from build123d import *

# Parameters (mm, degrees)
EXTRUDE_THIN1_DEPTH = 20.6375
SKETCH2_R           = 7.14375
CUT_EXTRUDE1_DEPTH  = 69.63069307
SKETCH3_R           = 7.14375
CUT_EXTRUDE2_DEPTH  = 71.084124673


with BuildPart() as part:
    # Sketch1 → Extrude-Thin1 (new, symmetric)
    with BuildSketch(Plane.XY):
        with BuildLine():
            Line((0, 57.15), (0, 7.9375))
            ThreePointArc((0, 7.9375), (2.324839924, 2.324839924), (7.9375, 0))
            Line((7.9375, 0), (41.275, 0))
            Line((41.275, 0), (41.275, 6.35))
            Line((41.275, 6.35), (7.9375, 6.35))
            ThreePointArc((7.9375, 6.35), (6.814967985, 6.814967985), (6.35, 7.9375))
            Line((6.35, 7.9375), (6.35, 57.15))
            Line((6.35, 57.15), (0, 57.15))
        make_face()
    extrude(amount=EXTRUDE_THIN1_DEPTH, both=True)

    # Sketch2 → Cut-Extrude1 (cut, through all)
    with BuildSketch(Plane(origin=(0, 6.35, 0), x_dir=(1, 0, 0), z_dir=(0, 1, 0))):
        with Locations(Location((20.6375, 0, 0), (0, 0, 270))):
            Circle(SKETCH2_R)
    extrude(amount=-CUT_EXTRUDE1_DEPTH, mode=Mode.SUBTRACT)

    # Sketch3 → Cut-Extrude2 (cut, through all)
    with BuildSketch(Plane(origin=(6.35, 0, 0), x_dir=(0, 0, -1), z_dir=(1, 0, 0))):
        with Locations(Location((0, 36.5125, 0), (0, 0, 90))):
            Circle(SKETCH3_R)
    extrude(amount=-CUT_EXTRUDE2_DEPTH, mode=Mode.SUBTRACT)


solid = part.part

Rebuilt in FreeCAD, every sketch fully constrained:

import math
import FreeCAD as App
import Part
import Sketcher
from FreeCAD import Vector
Q = App.Units.Quantity

doc = App.newDocument("Part")
body = doc.addObject("PartDesign::Body", "Body")

# Sketch on XY plane
sketch1 = doc.addObject("Sketcher::SketchObject", "Sketch")
body.addObject(sketch1)
sketch1.AttachmentSupport = (doc.XY_Plane, [""])
sketch1.MapMode = "FlatFace"
sketch1.addGeometry([
    Part.LineSegment(Vector(0, 57.1, 0), Vector(0, 7.9, 0)),  # 0
    Part.ArcOfCircle(Part.Circle(Vector(7.9, 7.9, 0), Vector(0, 0, 1), 7.9), math.radians(180), math.radians(270)),  # 1
    Part.LineSegment(Vector(7.9, 0, 0), Vector(41.3, 0, 0)),  # 2
    Part.LineSegment(Vector(41.3, 0, 0), Vector(41.3, 6.3, 0)),  # 3
    Part.LineSegment(Vector(41.3, 6.3, 0), Vector(7.9, 6.3, 0)),  # 4
    Part.ArcOfCircle(Part.Circle(Vector(7.9, 7.9, 0), Vector(0, 0, 1), 1.6), math.radians(180), math.radians(270)),  # 5
    Part.LineSegment(Vector(6.3, 7.9, 0), Vector(6.3, 57.1, 0)),  # 6
    Part.LineSegment(Vector(6.3, 57.1, 0), Vector(0, 57.1, 0)),  # 7
], False)
sketch1.addConstraint([
    Sketcher.Constraint("Tangent", 0, 2, 1, 1),
    Sketcher.Constraint("Tangent", 1, 2, 2, 1),
    Sketcher.Constraint("Coincident", 2, 2, 3, 1),
    Sketcher.Constraint("Coincident", 3, 2, 4, 1),
    Sketcher.Constraint("Tangent", 4, 2, 5, 2),
    Sketcher.Constraint("Tangent", 5, 1, 6, 1),
    Sketcher.Constraint("Coincident", 6, 2, 7, 1),
    Sketcher.Constraint("Coincident", 7, 2, 0, 1),
    Sketcher.Constraint("Vertical", 0),
    Sketcher.Constraint("Horizontal", 2),
    Sketcher.Constraint("Vertical", 3),
    Sketcher.Constraint("Horizontal", 4),
    Sketcher.Constraint("Vertical", 6),
    Sketcher.Constraint("Horizontal", 7),
    Sketcher.Constraint("Coincident", 5, 3, 1, 3),
    Sketcher.Constraint("PointOnObject", 0, 2, -2),
    Sketcher.Constraint("PointOnObject", 1, 2, -1),
    Sketcher.Constraint("Radius", 1, Q("0.3125 in")),
    Sketcher.Constraint("Radius", 5, Q("0.0625 in")),
    Sketcher.Constraint("DistanceY", 4, 2, 6, 2, Q("2 in")),
    Sketcher.Constraint("DistanceX", 2, 1, 2, 2, Q("1.3125 in")),
])
pad1 = doc.addObject("PartDesign::Pad", "Pad")
body.addObject(pad1)
pad1.Profile = sketch1
pad1.Length = Q("1.625 in")
pad1.Midplane = True

# Sketch on XZ plane
sketch2 = doc.addObject("Sketcher::SketchObject", "Sketch001")
body.addObject(sketch2)
sketch2.AttachmentSupport = (doc.XZ_Plane, [""])
sketch2.MapMode = "FlatFace"
sketch2.AttachmentOffset = App.Placement(Vector(0, 0, -0.25 * 25.4), App.Rotation())
sketch2.addGeometry(Part.Circle(Vector(21, 0, 0), Vector(0, 0, 1), 7), False)
sketch2.addConstraint([
    Sketcher.Constraint("PointOnObject", 0, 3, -1),
    Sketcher.Constraint("Diameter", 0, Q("0.5625 in")),
    Sketcher.Constraint("DistanceX", -1, 1, 0, 3, Q("0.8125 in")),
])
pocket1 = doc.addObject("PartDesign::Pocket", "Pocket")
body.addObject(pocket1)
pocket1.Profile = sketch2
pocket1.Type = "ThroughAll"
pocket1.Reversed = True

# Sketch on YZ plane
sketch3 = doc.addObject("Sketcher::SketchObject", "Sketch002")
body.addObject(sketch3)
sketch3.AttachmentSupport = (doc.YZ_Plane, [""])
sketch3.MapMode = "FlatFace"
sketch3.AttachmentOffset = App.Placement(Vector(0, 0, 0.25 * 25.4), App.Rotation())
sketch3.addGeometry(Part.Circle(Vector(37, 0, 0), Vector(0, 0, 1), 7), False)
sketch3.addConstraint([
    Sketcher.Constraint("PointOnObject", 0, 3, -1),
    Sketcher.Constraint("Diameter", 0, Q("0.5625 in")),
    Sketcher.Constraint("DistanceX", -1, 1, 0, 3, Q("1.4375 in")),
])
pocket2 = doc.addObject("PartDesign::Pocket", "Pocket001")
body.addObject(pocket2)
pocket2.Profile = sketch3
pocket2.Type = "ThroughAll"

doc.recompute()
